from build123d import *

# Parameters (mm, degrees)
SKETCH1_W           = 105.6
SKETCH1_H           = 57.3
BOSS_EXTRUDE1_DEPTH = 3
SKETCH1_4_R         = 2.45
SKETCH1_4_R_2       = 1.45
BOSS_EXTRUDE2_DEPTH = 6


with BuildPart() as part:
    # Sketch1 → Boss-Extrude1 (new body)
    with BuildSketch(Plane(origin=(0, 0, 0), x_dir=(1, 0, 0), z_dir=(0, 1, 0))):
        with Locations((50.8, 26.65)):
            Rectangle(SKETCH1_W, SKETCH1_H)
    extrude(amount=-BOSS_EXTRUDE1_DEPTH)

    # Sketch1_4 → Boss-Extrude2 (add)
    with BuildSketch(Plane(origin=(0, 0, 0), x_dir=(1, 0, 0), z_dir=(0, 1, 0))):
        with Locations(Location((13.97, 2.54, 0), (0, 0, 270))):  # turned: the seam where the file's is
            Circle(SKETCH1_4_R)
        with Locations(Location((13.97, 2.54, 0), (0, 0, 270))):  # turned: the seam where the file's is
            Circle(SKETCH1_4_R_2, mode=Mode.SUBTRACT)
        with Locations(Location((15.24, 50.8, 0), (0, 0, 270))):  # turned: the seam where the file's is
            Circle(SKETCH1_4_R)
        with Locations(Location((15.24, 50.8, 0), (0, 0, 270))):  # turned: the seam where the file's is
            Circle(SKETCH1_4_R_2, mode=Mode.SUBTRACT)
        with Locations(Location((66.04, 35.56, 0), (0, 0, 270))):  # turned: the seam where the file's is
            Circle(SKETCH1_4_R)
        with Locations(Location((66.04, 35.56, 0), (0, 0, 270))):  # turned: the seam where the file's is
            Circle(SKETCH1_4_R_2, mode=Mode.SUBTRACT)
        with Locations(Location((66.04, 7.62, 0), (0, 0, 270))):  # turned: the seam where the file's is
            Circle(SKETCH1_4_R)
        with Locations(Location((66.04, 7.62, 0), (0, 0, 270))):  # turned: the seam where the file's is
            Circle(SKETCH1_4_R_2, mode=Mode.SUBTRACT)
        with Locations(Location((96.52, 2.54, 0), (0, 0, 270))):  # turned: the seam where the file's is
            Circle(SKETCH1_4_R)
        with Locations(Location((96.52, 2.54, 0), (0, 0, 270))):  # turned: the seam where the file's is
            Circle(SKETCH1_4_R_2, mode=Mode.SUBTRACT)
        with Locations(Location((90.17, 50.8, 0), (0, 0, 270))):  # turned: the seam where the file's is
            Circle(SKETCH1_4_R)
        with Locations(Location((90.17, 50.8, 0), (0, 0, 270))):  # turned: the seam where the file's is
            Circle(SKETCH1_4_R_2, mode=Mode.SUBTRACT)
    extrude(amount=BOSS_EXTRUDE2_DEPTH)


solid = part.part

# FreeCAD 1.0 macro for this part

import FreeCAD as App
import Part
import Sketcher


def add_polygon(sketch, points):
    """Adds a closed chain of lines whose ends are joined by coincident constraints."""
    first, n = sketch.GeometryCount, len(points)
    for a, b in zip(points, points[1:] + points[:1]):
        sketch.addGeometry(Part.LineSegment(App.Vector(*a, 0), App.Vector(*b, 0)), False)
    for i in range(n):
        sketch.addConstraint(Sketcher.Constraint("Coincident", first + i, 2, first + (i + 1) % n, 1))

doc = App.newDocument("Part")
body = doc.addObject("PartDesign::Body", "Body")

sketch1 = doc.addObject("Sketcher::SketchObject", "Sketch")
body.addObject(sketch1)
sketch1.AttachmentSupport = (doc.XZ_Plane, [""])
sketch1.MapMode = "FlatFace"
add_polygon(sketch1, [(-2, -55), (-2, 2), (104, 2), (104, -55)])
sketch1.addConstraint([
    Sketcher.Constraint("Vertical", 0),
    Sketcher.Constraint("Horizontal", 1),
    Sketcher.Constraint("Vertical", 2),
    Sketcher.Constraint("Horizontal", 3),
    Sketcher.Constraint("DistanceX", 1, 1, 1, 2, 105.6),
    Sketcher.Constraint("DistanceY", 0, 1, 0, 2, 57.3),
    Sketcher.Constraint("DistanceX", 0, 2, -1, 1, 2.0),
    Sketcher.Constraint("DistanceY", -1, 1, 0, 2, 2.0),
])
pad1 = doc.addObject("PartDesign::Pad", "Pad")
body.addObject(pad1)
pad1.Profile = sketch1
pad1.Length = 3

sketch2 = doc.addObject("Sketcher::SketchObject", "Sketch001")
body.addObject(sketch2)
sketch2.AttachmentSupport = (doc.XZ_Plane, [""])
sketch2.MapMode = "FlatFace"
sketch2.addGeometry([
    Part.Circle(App.Vector(14, -2.5, 0), App.Vector(0, 0, 1), 2.5),
    Part.Circle(App.Vector(14, -2.5, 0), App.Vector(0, 0, 1), 1.4),
    Part.Circle(App.Vector(15.2, -50.8, 0), App.Vector(0, 0, 1), 2.5),
    Part.Circle(App.Vector(15.2, -50.8, 0), App.Vector(0, 0, 1), 1.4),
    Part.Circle(App.Vector(66, -35.6, 0), App.Vector(0, 0, 1), 2.5),
    Part.Circle(App.Vector(66, -35.6, 0), App.Vector(0, 0, 1), 1.4),
    Part.Circle(App.Vector(66, -7.6, 0), App.Vector(0, 0, 1), 2.5),
    Part.Circle(App.Vector(66, -7.6, 0), App.Vector(0, 0, 1), 1.4),
    Part.Circle(App.Vector(96.5, -2.5, 0), App.Vector(0, 0, 1), 2.5),
    Part.Circle(App.Vector(96.5, -2.5, 0), App.Vector(0, 0, 1), 1.4),
    Part.Circle(App.Vector(90.2, -50.8, 0), App.Vector(0, 0, 1), 2.5),
    Part.Circle(App.Vector(90.2, -50.8, 0), App.Vector(0, 0, 1), 1.4),
], False)
sketch2.addConstraint([
    Sketcher.Constraint("Coincident", 1, 3, 0, 3),
    Sketcher.Constraint("Coincident", 3, 3, 2, 3),
    Sketcher.Constraint("Coincident", 5, 3, 4, 3),
    Sketcher.Constraint("Coincident", 7, 3, 6, 3),
    Sketcher.Constraint("Coincident", 9, 3, 8, 3),
    Sketcher.Constraint("Coincident", 11, 3, 10, 3),
    Sketcher.Constraint("Equal", 0, 2),
    Sketcher.Constraint("Equal", 1, 3),
    Sketcher.Constraint("Equal", 2, 4),
    Sketcher.Constraint("Equal", 3, 5),
    Sketcher.Constraint("Equal", 4, 6),
    Sketcher.Constraint("Equal", 5, 7),
    Sketcher.Constraint("Equal", 6, 8),
    Sketcher.Constraint("Equal", 7, 9),
    Sketcher.Constraint("Equal", 8, 10),
    Sketcher.Constraint("Equal", 9, 11),
    Sketcher.Constraint("Horizontal", 1, 3, 8, 3),
    Sketcher.Constraint("Horizontal", 3, 3, 10, 3),
    Sketcher.Constraint("Vertical", 5, 3, 6, 3),
    Sketcher.Constraint("Diameter", 0, 4.9),
    Sketcher.Constraint("Diameter", 1, 2.9),
    Sketcher.Constraint("DistanceY", 2, 3, -1, 1, 50.8),
    Sketcher.Constraint("DistanceX", 2, 3, 4, 3, 50.8),
    Sketcher.Constraint("DistanceX", -1, 1, 0, 3, 13.97),
    Sketcher.Constraint("DistanceY", 0, 3, -1, 1, 2.54),
    Sketcher.Constraint("DistanceX", -1, 1, 2, 3, 15.24),
    Sketcher.Constraint("DistanceY", 4, 3, -1, 1, 35.56),
    Sketcher.Constraint("DistanceY", 6, 3, -1, 1, 7.62),
    Sketcher.Constraint("DistanceX", -1, 1, 8, 3, 96.52),
    Sketcher.Constraint("DistanceX", -1, 1, 10, 3, 90.17),
])
pad2 = doc.addObject("PartDesign::Pad", "Pad001")
body.addObject(pad2)
pad2.Profile = sketch2
pad2.Length = 6
pad2.Reversed = True

doc.recompute()
